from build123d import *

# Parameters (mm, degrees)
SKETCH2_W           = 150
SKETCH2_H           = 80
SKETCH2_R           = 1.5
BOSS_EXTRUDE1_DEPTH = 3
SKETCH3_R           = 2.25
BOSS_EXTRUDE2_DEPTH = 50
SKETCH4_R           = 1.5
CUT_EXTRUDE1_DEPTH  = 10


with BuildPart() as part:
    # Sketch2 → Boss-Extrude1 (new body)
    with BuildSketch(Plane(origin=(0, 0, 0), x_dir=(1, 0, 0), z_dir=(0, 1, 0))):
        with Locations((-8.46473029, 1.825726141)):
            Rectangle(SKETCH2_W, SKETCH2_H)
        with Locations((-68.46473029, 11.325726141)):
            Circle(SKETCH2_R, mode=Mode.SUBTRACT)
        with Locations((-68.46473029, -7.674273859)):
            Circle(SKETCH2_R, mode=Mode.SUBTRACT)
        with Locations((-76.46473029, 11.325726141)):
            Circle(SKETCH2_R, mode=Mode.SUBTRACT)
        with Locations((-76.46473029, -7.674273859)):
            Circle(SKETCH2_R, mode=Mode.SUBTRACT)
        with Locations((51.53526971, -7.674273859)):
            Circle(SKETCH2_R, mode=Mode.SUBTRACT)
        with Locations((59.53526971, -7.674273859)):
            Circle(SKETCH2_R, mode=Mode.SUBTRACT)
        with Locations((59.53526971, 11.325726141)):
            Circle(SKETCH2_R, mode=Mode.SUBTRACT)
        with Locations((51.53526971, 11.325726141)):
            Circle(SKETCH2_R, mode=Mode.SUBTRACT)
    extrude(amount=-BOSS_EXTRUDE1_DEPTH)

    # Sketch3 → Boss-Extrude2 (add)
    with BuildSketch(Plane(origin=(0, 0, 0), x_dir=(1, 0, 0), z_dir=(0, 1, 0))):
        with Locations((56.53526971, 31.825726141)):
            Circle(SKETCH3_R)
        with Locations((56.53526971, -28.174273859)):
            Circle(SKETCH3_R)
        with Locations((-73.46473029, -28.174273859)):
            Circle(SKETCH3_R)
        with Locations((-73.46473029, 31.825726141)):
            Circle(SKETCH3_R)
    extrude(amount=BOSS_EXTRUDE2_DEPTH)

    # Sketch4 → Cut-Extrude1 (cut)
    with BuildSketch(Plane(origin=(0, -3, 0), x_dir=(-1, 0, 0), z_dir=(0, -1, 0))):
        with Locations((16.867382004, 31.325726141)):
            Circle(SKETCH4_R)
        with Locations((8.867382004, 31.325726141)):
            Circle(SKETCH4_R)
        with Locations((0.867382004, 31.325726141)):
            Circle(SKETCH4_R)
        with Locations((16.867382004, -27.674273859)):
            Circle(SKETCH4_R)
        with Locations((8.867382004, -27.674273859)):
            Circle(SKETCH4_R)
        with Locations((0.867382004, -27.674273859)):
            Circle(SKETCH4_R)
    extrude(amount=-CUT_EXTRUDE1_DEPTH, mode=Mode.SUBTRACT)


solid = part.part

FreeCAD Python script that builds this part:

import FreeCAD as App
import Part
import Sketcher


def add_polygon(sketch, points):
    """Adds a closed chain of lines whose ends are joined by coincident constraints."""
    first, n = sketch.GeometryCount, len(points)
    for a, b in zip(points, points[1:] + points[:1]):
        sketch.addGeometry(Part.LineSegment(App.Vector(*a, 0), App.Vector(*b, 0)), False)
    for i in range(n):
        sketch.addConstraint(Sketcher.Constraint("Coincident", first + i, 2, first + (i + 1) % n, 1))

doc = App.newDocument("Part")
params = doc.addObject("Spreadsheet::Sheet", "Params")
for row, (alias, value) in enumerate([
    ("sketch1_diameter", "3 mm"),
    ("sketch1_width", "150 mm"),
    ("sketch1_height", "80 mm"),
    ("pad1_length", "3 mm"),
    ("sketch2_diameter", "4.5 mm"),
    ("pad2_length", "50 mm"),
    ("sketch3_diameter", "3 mm"),
    ("pocket1_length", "10 mm"),
], start=1):
    params.set(f"A{row}", alias)
    params.set(f"B{row}", "=" + value)
    params.setAlias(f"B{row}", alias)

body = doc.addObject("PartDesign::Body", "Body")

# Sketch on XZ plane
sketch1 = body.newObject("Sketcher::SketchObject", "Sketch")
sketch1.AttachmentSupport = (doc.getObject("XZ_Plane"), [""])
sketch1.MapMode = "FlatFace"
add_polygon(sketch1, [(-83.46473, -41.825726), (-83.46473, 38.174274), (66.53527, 38.174274), (66.53527, -41.825726)])  # lines 0-3
sketch1.addGeometry(Part.Circle(App.Vector(-76.46473, 7.674274, 0), App.Vector(0, 0, 1), 1.5), False)  # 4
sketch1.addGeometry(Part.Circle(App.Vector(-68.46473, 7.674274, 0), App.Vector(0, 0, 1), 1.5), False)  # 5
sketch1.addGeometry(Part.Circle(App.Vector(51.53527, 7.674274, 0), App.Vector(0, 0, 1), 1.5), False)  # 6
sketch1.addGeometry(Part.Circle(App.Vector(59.53527, 7.674274, 0), App.Vector(0, 0, 1), 1.5), False)  # 7
sketch1.addGeometry(Part.Circle(App.Vector(-76.46473, -11.325726, 0), App.Vector(0, 0, 1), 1.5), False)  # 8
sketch1.addGeometry(Part.Circle(App.Vector(-68.46473, -11.325726, 0), App.Vector(0, 0, 1), 1.5), False)  # 9
sketch1.addGeometry(Part.Circle(App.Vector(51.53527, -11.325726, 0), App.Vector(0, 0, 1), 1.5), False)  # 10
sketch1.addGeometry(Part.Circle(App.Vector(59.53527, -11.325726, 0), App.Vector(0, 0, 1), 1.5), False)  # 11
sketch1.addConstraint([
    Sketcher.Constraint("Vertical", 0),
    Sketcher.Constraint("Horizontal", 1),
    Sketcher.Constraint("Vertical", 2),
    Sketcher.Constraint("Horizontal", 3),
    Sketcher.Constraint("Equal", 4, 5),
    Sketcher.Constraint("Equal", 5, 6),
    Sketcher.Constraint("Equal", 6, 7),
    Sketcher.Constraint("Equal", 7, 8),
    Sketcher.Constraint("Equal", 8, 9),
    Sketcher.Constraint("Equal", 9, 10),
    Sketcher.Constraint("Equal", 10, 11),
    Sketcher.Constraint("Horizontal", 4, 3, 5, 3),
    Sketcher.Constraint("Horizontal", 5, 3, 6, 3),
    Sketcher.Constraint("Horizontal", 6, 3, 7, 3),
    Sketcher.Constraint("Horizontal", 8, 3, 9, 3),
    Sketcher.Constraint("Horizontal", 9, 3, 10, 3),
    Sketcher.Constraint("Horizontal", 10, 3, 11, 3),
    Sketcher.Constraint("Vertical", 4, 3, 8, 3),
    Sketcher.Constraint("Vertical", 5, 3, 9, 3),
    Sketcher.Constraint("Vertical", 6, 3, 10, 3),
    Sketcher.Constraint("Vertical", 7, 3, 11, 3),
    Sketcher.Constraint("Diameter", 4, 3.0),
    Sketcher.Constraint("DistanceX", 1, 1, 1, 2, 150.0),
    Sketcher.Constraint("DistanceY", 0, 1, 0, 2, 80.0),
    Sketcher.Constraint("DistanceX", 4, 3, 5, 3, 8.0),
    Sketcher.Constraint("DistanceX", 5, 3, 6, 3, 120.0),
    Sketcher.Constraint("DistanceX", 6, 3, 7, 3, 8.0),
    Sketcher.Constraint("DistanceY", 8, 3, 4, 3, 19.0),
    Sketcher.Constraint("DistanceX", 0, 2, 4, 3, 7.0),
    Sketcher.Constraint("DistanceY", 4, 3, 0, 2, 30.5),
    Sketcher.Constraint("DistanceX", 4, 3, -1, 1, 76.46473),
    Sketcher.Constraint("DistanceY", -1, 1, 4, 3, 7.674274),
])
sketch1.setExpression("Constraints[25]", "Params.sketch1_diameter")
sketch1.setExpression("Constraints[26]", "Params.sketch1_width")
sketch1.setExpression("Constraints[27]", "Params.sketch1_height")
pad1 = body.newObject("PartDesign::Pad", "Pad")
pad1.Profile = sketch1
pad1.setExpression("Length", "Params.pad1_length")

# Sketch on XZ plane
sketch2 = body.newObject("Sketcher::SketchObject", "Sketch001")
sketch2.AttachmentSupport = (doc.getObject("XZ_Plane"), [""])
sketch2.MapMode = "FlatFace"
sketch2.addGeometry([
    Part.Circle(App.Vector(56.53527, -31.825726, 0), App.Vector(0, 0, 1), 2.25),
    Part.Circle(App.Vector(56.53527, 28.174274, 0), App.Vector(0, 0, 1), 2.25),
    Part.Circle(App.Vector(-73.46473, 28.174274, 0), App.Vector(0, 0, 1), 2.25),
    Part.Circle(App.Vector(-73.46473, -31.825726, 0), App.Vector(0, 0, 1), 2.25),
], False)
sketch2.addConstraint([
    Sketcher.Constraint("Equal", 0, 1),
    Sketcher.Constraint("Equal", 1, 2),
    Sketcher.Constraint("Equal", 2, 3),
    Sketcher.Constraint("Horizontal", 1, 3, 2, 3),
    Sketcher.Constraint("Horizontal", 0, 3, 3, 3),
    Sketcher.Constraint("Vertical", 0, 3, 1, 3),
    Sketcher.Constraint("Vertical", 2, 3, 3, 3),
    Sketcher.Constraint("Diameter", 0, 4.5),
    Sketcher.Constraint("DistanceY", 0, 3, 1, 3, 60.0),
    Sketcher.Constraint("DistanceX", 2, 3, 1, 3, 130.0),
    Sketcher.Constraint("DistanceX", -1, 1, 0, 3, 56.53527),
    Sketcher.Constraint("DistanceY", 0, 3, -1, 1, 31.825726),
])
sketch2.setExpression("Constraints[7]", "Params.sketch2_diameter")
pad2 = body.newObject("PartDesign::Pad", "Pad001")
pad2.Profile = sketch2
pad2.setExpression("Length", "Params.pad2_length")
pad2.Reversed = True

# Sketch on XZ plane
sketch3 = body.newObject("Sketcher::SketchObject", "Sketch002")
sketch3.AttachmentSupport = (doc.getObject("XZ_Plane"), [""])
sketch3.MapMode = "FlatFace"
sketch3.AttachmentOffset = App.Placement(App.Vector(0, 0, 3), App.Rotation())
sketch3.addGeometry([
    Part.Circle(App.Vector(-16.867382, -31.325726, 0), App.Vector(0, 0, 1), 1.5),  # 0
    Part.Circle(App.Vector(-8.867382, -31.325726, 0), App.Vector(0, 0, 1), 1.5),  # 1
    Part.Circle(App.Vector(-0.867382, -31.325726, 0), App.Vector(0, 0, 1), 1.5),  # 2
    Part.Circle(App.Vector(-16.867382, 27.674274, 0), App.Vector(0, 0, 1), 1.5),  # 3
    Part.Circle(App.Vector(-8.867382, 27.674274, 0), App.Vector(0, 0, 1), 1.5),  # 4
    Part.Circle(App.Vector(-0.867382, 27.674274, 0), App.Vector(0, 0, 1), 1.5),  # 5
], False)
sketch3.addConstraint([
    Sketcher.Constraint("Equal", 0, 1),
    Sketcher.Constraint("Equal", 1, 2),
    Sketcher.Constraint("Equal", 2, 3),
    Sketcher.Constraint("Equal", 3, 4),
    Sketcher.Constraint("Equal", 4, 5),
    Sketcher.Constraint("Horizontal", 0, 3, 1, 3),
    Sketcher.Constraint("Horizontal", 1, 3, 2, 3),
    Sketcher.Constraint("Horizontal", 3, 3, 4, 3),
    Sketcher.Constraint("Horizontal", 4, 3, 5, 3),
    Sketcher.Constraint("Vertical", 0, 3, 3, 3),
    Sketcher.Constraint("Vertical", 1, 3, 4, 3),
    Sketcher.Constraint("Vertical", 2, 3, 5, 3),
    Sketcher.Constraint("Diameter", 0, 3.0),
    Sketcher.Constraint("DistanceX", 0, 3, 1, 3, 8.0),
    Sketcher.Constraint("DistanceX", 1, 3, 2, 3, 8.0),
    Sketcher.Constraint("DistanceY", 0, 3, 3, 3, 59.0),
    Sketcher.Constraint("DistanceX", 0, 3, -1, 1, 16.867382),
    Sketcher.Constraint("DistanceY", 0, 3, -1, 1, 31.325726),
])
sketch3.setExpression("Constraints[12]", "Params.sketch3_diameter")
pocket1 = body.newObject("PartDesign::Pocket", "Pocket")
pocket1.Profile = sketch3
pocket1.setExpression("Length", "Params.pocket1_length")

doc.recompute()
